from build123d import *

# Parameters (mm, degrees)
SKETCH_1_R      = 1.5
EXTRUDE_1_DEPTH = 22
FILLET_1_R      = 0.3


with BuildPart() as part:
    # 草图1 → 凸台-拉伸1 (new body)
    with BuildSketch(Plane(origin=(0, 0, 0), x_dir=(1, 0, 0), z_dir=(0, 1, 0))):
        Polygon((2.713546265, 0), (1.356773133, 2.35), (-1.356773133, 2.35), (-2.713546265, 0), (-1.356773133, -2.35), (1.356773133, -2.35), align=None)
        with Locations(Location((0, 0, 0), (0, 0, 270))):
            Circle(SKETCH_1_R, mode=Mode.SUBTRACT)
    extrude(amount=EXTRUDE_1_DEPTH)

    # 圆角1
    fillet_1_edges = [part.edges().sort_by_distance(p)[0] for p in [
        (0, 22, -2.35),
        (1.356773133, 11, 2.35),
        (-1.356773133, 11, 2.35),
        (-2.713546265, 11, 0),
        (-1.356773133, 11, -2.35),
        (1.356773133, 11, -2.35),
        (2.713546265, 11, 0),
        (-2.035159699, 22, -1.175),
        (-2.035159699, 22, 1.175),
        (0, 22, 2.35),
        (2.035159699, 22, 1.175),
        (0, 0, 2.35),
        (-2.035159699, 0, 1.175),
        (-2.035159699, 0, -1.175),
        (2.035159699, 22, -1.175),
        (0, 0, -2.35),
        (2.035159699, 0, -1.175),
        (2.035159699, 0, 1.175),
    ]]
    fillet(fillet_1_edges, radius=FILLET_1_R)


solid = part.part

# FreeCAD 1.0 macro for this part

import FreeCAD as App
import Part
import Sketcher
from FreeCAD import Vector
Q = App.Units.Quantity


def edges_at(feature, points):
    """Names of the edges that pass closest to the given points."""
    edges = feature.Shape.Edges
    near = lambda p: min(range(len(edges)), key=lambda i: edges[i].distToShape(Part.Vertex(*p))[0])
    return sorted({f"Edge{near(p) + 1}" for p in points})


def add_polygon(sketch, points):
    """Adds a closed chain of lines whose ends are joined by coincident constraints."""
    first, n = sketch.GeometryCount, len(points)
    for a, b in zip(points, points[1:] + points[:1]):
        sketch.addGeometry(Part.LineSegment(App.Vector(*a, 0), App.Vector(*b, 0)), False)
    for i in range(n):
        sketch.addConstraint(Sketcher.Constraint("Coincident", first + i, 2, first + (i + 1) % n, 1))

doc = App.newDocument("Part")
params = doc.addObject("Spreadsheet::Sheet", "Params")
for row, (alias, value) in enumerate([
    ("sketch1_diameter", "3 mm"),
    ("pad1_length", "22 mm"),
    ("fillet_radius", "0.3 mm"),
], start=1):
    params.set(f"A{row}", alias)
    params.set(f"B{row}", "=" + value)
    params.setAlias(f"B{row}", alias)

body = doc.addObject("PartDesign::Body", "Body")

# Sketch on XZ plane
sketch1 = body.newObject("Sketcher::SketchObject", "Sketch")
sketch1.AttachmentSupport = (doc.getObject("XZ_Plane"), [""])
sketch1.MapMode = "FlatFace"
add_polygon(sketch1, [(2.713546, 0), (1.356773, -2.35), (-1.356773, -2.35), (-2.713546, 0), (-1.356773, 2.35), (1.356773, 2.35)])  # lines 0-5
sketch1.addGeometry(Part.Circle(Vector(0, 0, 0), Vector(0, 0, 1), 1.5), False)  # 6
sketch1.addConstraint(Sketcher.Constraint("Horizontal", 1))
sketch1.addConstraint(Sketcher.Constraint("Horizontal", 4))
sketch1.addConstraint(Sketcher.Constraint("Coincident", 6, 3, -1, 1))
sketch1.addConstraint(Sketcher.Constraint("Symmetric", 0, 2, 3, 2, -1, 1))
sketch1.addConstraint(Sketcher.Constraint("Symmetric", 2, 2, 5, 2, -1, 1))
sketch1.addConstraint(Sketcher.Constraint("PointOnObject", 2, 2, -1))
sketch1.addConstraint(Sketcher.Constraint("Parallel", 2, 5))
sketch1.addConstraint(Sketcher.Constraint("Vertical", 1, 2, 3, 2))
sketch1.addConstraint(Sketcher.Constraint("Diameter", 6, Q("3 mm")))
sketch1.addConstraint(Sketcher.Constraint("Angle", 0, Q("-120 deg")))
sketch1.addConstraint(Sketcher.Constraint("DistanceY", 1, 2, 3, 2, Q("4.7 mm")))
sketch1.addConstraint(Sketcher.Constraint("DistanceX", 1, 2, 1, 1, Q("2.713546 mm")))
sketch1.setExpression("Constraints[14]", "Params.sketch1_diameter")
pad1 = body.newObject("PartDesign::Pad", "Pad")
pad1.Profile = sketch1
pad1.setExpression("Length", "Params.pad1_length")
pad1.Reversed = True
doc.recompute()

fillet = body.newObject("PartDesign::Fillet", "Fillet")
fillet.Base = (pad1, edges_at(pad1, [
    (0, 22, -2.35),
    (1.357, 11, 2.35),
    (-1.357, 11, 2.35),
    (-2.714, 11, 0),
    (-1.357, 11, -2.35),
    (1.357, 11, -2.35),
    (2.714, 11, 0),
    (-2.035, 22, -1.175),
    (-2.035, 22, 1.175),
    (0, 22, 2.35),
    (2.035, 22, 1.175),
    (0, 0, 2.35),
    (-2.035, 0, 1.175),
    (-2.035, 0, -1.175),
    (2.035, 22, -1.175),
    (0, 0, -2.35),
    (2.035, 0, -1.175),
    (2.035, 0, 1.175),
]))
fillet.setExpression("Radius", "Params.fillet_radius")

doc.recompute()
